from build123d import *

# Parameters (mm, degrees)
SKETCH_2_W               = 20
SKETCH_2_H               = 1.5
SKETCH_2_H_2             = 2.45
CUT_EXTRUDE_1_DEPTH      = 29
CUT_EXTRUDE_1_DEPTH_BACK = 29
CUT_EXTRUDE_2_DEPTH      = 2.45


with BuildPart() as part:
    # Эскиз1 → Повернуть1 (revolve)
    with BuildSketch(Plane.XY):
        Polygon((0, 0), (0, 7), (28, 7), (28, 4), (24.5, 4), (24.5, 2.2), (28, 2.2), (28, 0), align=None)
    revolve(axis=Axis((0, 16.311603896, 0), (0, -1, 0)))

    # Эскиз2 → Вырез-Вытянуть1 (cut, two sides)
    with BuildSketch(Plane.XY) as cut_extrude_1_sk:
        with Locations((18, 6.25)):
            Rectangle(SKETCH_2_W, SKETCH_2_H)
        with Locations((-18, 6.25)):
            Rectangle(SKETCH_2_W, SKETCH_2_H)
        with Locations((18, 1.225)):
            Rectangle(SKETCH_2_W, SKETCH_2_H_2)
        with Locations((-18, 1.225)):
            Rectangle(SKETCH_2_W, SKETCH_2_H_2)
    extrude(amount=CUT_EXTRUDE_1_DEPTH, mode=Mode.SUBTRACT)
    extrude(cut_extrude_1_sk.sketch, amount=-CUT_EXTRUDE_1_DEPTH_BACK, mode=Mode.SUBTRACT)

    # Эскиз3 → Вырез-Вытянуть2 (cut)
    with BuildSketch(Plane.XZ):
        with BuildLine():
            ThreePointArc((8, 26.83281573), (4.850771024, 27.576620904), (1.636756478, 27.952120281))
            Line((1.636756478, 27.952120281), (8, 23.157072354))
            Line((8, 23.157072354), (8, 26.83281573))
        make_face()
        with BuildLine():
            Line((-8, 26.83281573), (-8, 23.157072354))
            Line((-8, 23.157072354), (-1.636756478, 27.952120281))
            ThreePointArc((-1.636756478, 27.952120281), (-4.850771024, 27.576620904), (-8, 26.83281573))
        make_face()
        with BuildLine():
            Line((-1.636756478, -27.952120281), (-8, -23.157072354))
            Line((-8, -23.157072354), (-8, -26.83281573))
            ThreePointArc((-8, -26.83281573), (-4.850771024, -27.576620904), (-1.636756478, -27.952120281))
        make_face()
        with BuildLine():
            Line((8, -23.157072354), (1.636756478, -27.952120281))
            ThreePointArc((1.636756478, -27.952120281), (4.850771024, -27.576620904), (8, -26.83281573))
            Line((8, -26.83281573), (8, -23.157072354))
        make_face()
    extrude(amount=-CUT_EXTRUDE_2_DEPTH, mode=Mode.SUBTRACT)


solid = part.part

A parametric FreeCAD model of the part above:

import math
import FreeCAD as App
import Part
import Sketcher

V = App.Vector
Q = App.Units.Quantity

doc = App.newDocument("Part")
params = doc.addObject("Spreadsheet::Sheet", "Params")
for row, (alias, value) in enumerate([
    ("sketch1_width", "28 mm"),
    ("sketch1_height", "7 mm"),
    ("sketch1_height2", "3 mm"),
    ("sketch1_width2", "3.5 mm"),
    ("sketch1_height3", "2.2 mm"),
    ("revolution_angle", "360 deg"),
    ("sketch2_width", "20 mm"),
    ("sketch2_height", "1.5 mm"),
    ("sketch2_height2", "2.45 mm"),
    ("sketch3_radius", "28 mm"),
    ("pocket2_length", "2.45 mm"),
], start=1):
    params.set(f"A{row}", alias)
    params.set(f"B{row}", "=" + value)
    params.setAlias(f"B{row}", alias)

body = doc.addObject("PartDesign::Body", "Body")

# Sketch on XY plane
sketch1 = body.newObject("Sketcher::SketchObject", "Sketch")
sketch1.AttachmentSupport = (doc.getObject("XY_Plane"), [""])
sketch1.MapMode = "FlatFace"
sketch1.addGeometry([
    Part.LineSegment(V(0, 7, 0), V(0, 0, 0)),  # 0
    Part.LineSegment(V(0, 0, 0), V(28, 0, 0)),  # 1
    Part.LineSegment(V(28, 0, 0), V(28, 2.2, 0)),  # 2
    Part.LineSegment(V(28, 2.2, 0), V(24.5, 2.2, 0)),  # 3
    Part.LineSegment(V(24.5, 2.2, 0), V(24.5, 4, 0)),  # 4
    Part.LineSegment(V(24.5, 4, 0), V(28, 4, 0)),  # 5
    Part.LineSegment(V(28, 4, 0), V(28, 7, 0)),  # 6
    Part.LineSegment(V(28, 7, 0), V(0, 7, 0)),  # 7
], False)
sketch1.addConstraint([
    Sketcher.Constraint("Coincident", 0, 2, 1, 1),
    Sketcher.Constraint("Coincident", 1, 2, 2, 1),
    Sketcher.Constraint("Coincident", 2, 2, 3, 1),
    Sketcher.Constraint("Coincident", 3, 2, 4, 1),
    Sketcher.Constraint("Coincident", 4, 2, 5, 1),
    Sketcher.Constraint("Coincident", 5, 2, 6, 1),
    Sketcher.Constraint("Coincident", 6, 2, 7, 1),
    Sketcher.Constraint("Coincident", 7, 2, 0, 1),
    Sketcher.Constraint("Vertical", 0),
    Sketcher.Constraint("Horizontal", 1),
    Sketcher.Constraint("Vertical", 2),
    Sketcher.Constraint("Horizontal", 3),
    Sketcher.Constraint("Vertical", 4),
    Sketcher.Constraint("Horizontal", 5),
    Sketcher.Constraint("Vertical", 6),
    Sketcher.Constraint("Horizontal", 7),
    Sketcher.Constraint("Coincident", 0, 2, -1, 1),
    Sketcher.Constraint("Vertical", 2, 2, 5, 2),
    Sketcher.Constraint("DistanceX", 1, 1, 1, 2, 28.0),
    Sketcher.Constraint("DistanceY", 0, 2, 0, 1, 7.0),
    Sketcher.Constraint("DistanceY", 6, 1, 6, 2, 3.0),
    Sketcher.Constraint("DistanceX", 3, 2, 3, 1, 3.5),
    Sketcher.Constraint("DistanceY", 2, 1, 2, 2, 2.2),
])
sketch1.setExpression("Constraints[18]", "Params.sketch1_width")
sketch1.setExpression("Constraints[19]", "Params.sketch1_height")
sketch1.setExpression("Constraints[20]", "Params.sketch1_height2")
sketch1.setExpression("Constraints[21]", "Params.sketch1_width2")
sketch1.setExpression("Constraints[22]", "Params.sketch1_height3")
revolution = body.newObject("PartDesign::Revolution", "Revolution")
revolution.Profile = sketch1
revolution.ReferenceAxis = (sketch1, ["V_Axis"])
revolution.setExpression("Angle", "Params.revolution_angle")

# Sketch on XY plane
sketch2 = body.newObject("Sketcher::SketchObject", "Sketch001")
sketch2.AttachmentSupport = (doc.getObject("XY_Plane"), [""])
sketch2.MapMode = "FlatFace"
sketch2.addGeometry([
    Part.LineSegment(V(8, 7, 0), V(8, 5.5, 0)),  # 0
    Part.LineSegment(V(8, 5.5, 0), V(28, 5.5, 0)),  # 1
    Part.LineSegment(V(28, 5.5, 0), V(28, 7, 0)),  # 2
    Part.LineSegment(V(28, 7, 0), V(8, 7, 0)),  # 3
    Part.LineSegment(V(-28, 7, 0), V(-28, 5.5, 0)),  # 4
    Part.LineSegment(V(-28, 5.5, 0), V(-8, 5.5, 0)),  # 5
    Part.LineSegment(V(-8, 5.5, 0), V(-8, 7, 0)),  # 6
    Part.LineSegment(V(-8, 7, 0), V(-28, 7, 0)),  # 7
    Part.LineSegment(V(8, 2.5, 0), V(8, 0, 0)),  # 8
    Part.LineSegment(V(8, 0, 0), V(28, 0, 0)),  # 9
    Part.LineSegment(V(28, 0, 0), V(28, 2.5, 0)),  # 10
    Part.LineSegment(V(28, 2.5, 0), V(8, 2.5, 0)),  # 11
    Part.LineSegment(V(-28, 2.5, 0), V(-28, 0, 0)),  # 12
    Part.LineSegment(V(-28, 0, 0), V(-8, 0, 0)),  # 13
    Part.LineSegment(V(-8, 0, 0), V(-8, 2.5, 0)),  # 14
    Part.LineSegment(V(-8, 2.5, 0), V(-28, 2.5, 0)),  # 15
], False)
sketch2.addConstraint([
    Sketcher.Constraint("Coincident", 0, 2, 1, 1),
    Sketcher.Constraint("Coincident", 1, 2, 2, 1),
    Sketcher.Constraint("Coincident", 2, 2, 3, 1),
    Sketcher.Constraint("Coincident", 3, 2, 0, 1),
    Sketcher.Constraint("Coincident", 4, 2, 5, 1),
    Sketcher.Constraint("Coincident", 5, 2, 6, 1),
    Sketcher.Constraint("Coincident", 6, 2, 7, 1),
    Sketcher.Constraint("Coincident", 7, 2, 4, 1),
    Sketcher.Constraint("Coincident", 8, 2, 9, 1),
    Sketcher.Constraint("Coincident", 9, 2, 10, 1),
    Sketcher.Constraint("Coincident", 10, 2, 11, 1),
    Sketcher.Constraint("Coincident", 11, 2, 8, 1),
    Sketcher.Constraint("Coincident", 12, 2, 13, 1),
    Sketcher.Constraint("Coincident", 13, 2, 14, 1),
    Sketcher.Constraint("Coincident", 14, 2, 15, 1),
    Sketcher.Constraint("Coincident", 15, 2, 12, 1),
    Sketcher.Constraint("Vertical", 0),
    Sketcher.Constraint("Horizontal", 1),
    Sketcher.Constraint("Vertical", 2),
    Sketcher.Constraint("Horizontal", 3),
    Sketcher.Constraint("Vertical", 4),
    Sketcher.Constraint("Horizontal", 5),
    Sketcher.Constraint("Vertical", 6),
    Sketcher.Constraint("Horizontal", 7),
    Sketcher.Constraint("Vertical", 8),
    Sketcher.Constraint("Horizontal", 9),
    Sketcher.Constraint("Vertical", 10),
    Sketcher.Constraint("Horizontal", 11),
    Sketcher.Constraint("Vertical", 12),
    Sketcher.Constraint("Horizontal", 13),
    Sketcher.Constraint("Vertical", 14),
    Sketcher.Constraint("Horizontal", 15),
    Sketcher.Constraint("Symmetric", 9, 2, 12, 2, -1, 1),
    Sketcher.Constraint("Symmetric", 1, 2, 4, 2, -2),
    Sketcher.Constraint("Symmetric", 3, 2, 6, 2, -2),
    Sketcher.Constraint("Symmetric", 8, 2, 13, 2, -2),
    Sketcher.Constraint("Horizontal", 11, 2, 14, 2),
    Sketcher.Constraint("Vertical", 3, 2, 8, 2),
    Sketcher.Constraint("Vertical", 2, 2, 9, 2),
    Sketcher.Constraint("DistanceX", 1, 1, 1, 2, 20.0),
    Sketcher.Constraint("DistanceY", 0, 2, 0, 1, 1.5),
    Sketcher.Constraint("DistanceX", -1, 1, 0, 2, 8.0),
    Sketcher.Constraint("DistanceY", -1, 1, 2, 2, 7.0),
    Sketcher.Constraint("DistanceY", 8, 2, 8, 1, 2.45),
])
sketch2.setExpression("Constraints[39]", "Params.sketch2_width")
sketch2.setExpression("Constraints[40]", "Params.sketch2_height")
sketch2.setExpression("Constraints[43]", "Params.sketch2_height2")
pocket1 = body.newObject("PartDesign::Pocket", "Pocket")
pocket1.Profile = sketch2
pocket1.Type = "ThroughAll"
pocket1.Midplane = True

# Sketch on XZ plane
sketch3 = body.newObject("Sketcher::SketchObject", "Sketch002")
sketch3.AttachmentSupport = (doc.getObject("XZ_Plane"), [""])
sketch3.MapMode = "FlatFace"
sketch3.addGeometry([
    Part.ArcOfCircle(Part.Circle(V(0, 0, 0), V(0, 0, 1), 28), math.radians(73.4), math.radians(86.65)),  # 0
    Part.LineSegment(V(1.6, 28, 0), V(8, 23.2, 0)),  # 1
    Part.LineSegment(V(8, 23.2, 0), V(8, 26.8, 0)),  # 2
    Part.LineSegment(V(-8, 26.8, 0), V(-8, 23.2, 0)),  # 3
    Part.LineSegment(V(-8, 23.2, 0), V(-1.6, 28, 0)),  # 4
    Part.ArcOfCircle(Part.Circle(V(0, 0, 0), V(0, 0, 1), 28), math.radians(93.35), math.radians(106.6)),  # 5
    Part.LineSegment(V(-1.6, -28, 0), V(-8, -23.2, 0)),  # 6
    Part.LineSegment(V(-8, -23.2, 0), V(-8, -26.8, 0)),  # 7
    Part.ArcOfCircle(Part.Circle(V(0, 0, 0), V(0, 0, 1), 28), math.radians(-106.6), math.radians(-93.35)),  # 8
    Part.LineSegment(V(8, -23.2, 0), V(1.6, -28, 0)),  # 9
    Part.ArcOfCircle(Part.Circle(V(0, 0, 0), V(0, 0, 1), 28), math.radians(-86.65), math.radians(-73.4)),  # 10
    Part.LineSegment(V(8, -26.8, 0), V(8, -23.2, 0)),  # 11
], False)
sketch3.addConstraint([
    Sketcher.Constraint("Coincident", 0, 2, 1, 1),
    Sketcher.Constraint("Coincident", 1, 2, 2, 1),
    Sketcher.Constraint("Coincident", 2, 2, 0, 1),
    Sketcher.Constraint("Coincident", 3, 2, 4, 1),
    Sketcher.Constraint("Coincident", 4, 2, 5, 1),
    Sketcher.Constraint("Coincident", 5, 2, 3, 1),
    Sketcher.Constraint("Coincident", 6, 2, 7, 1),
    Sketcher.Constraint("Coincident", 7, 2, 8, 1),
    Sketcher.Constraint("Coincident", 8, 2, 6, 1),
    Sketcher.Constraint("Coincident", 9, 2, 10, 1),
    Sketcher.Constraint("Coincident", 10, 2, 11, 1),
    Sketcher.Constraint("Coincident", 11, 2, 9, 1),
    Sketcher.Constraint("Vertical", 2),
    Sketcher.Constraint("Vertical", 3),
    Sketcher.Constraint("Vertical", 7),
    Sketcher.Constraint("Vertical", 11),
    Sketcher.Constraint("Coincident", 0, 3, -1, 1),
    Sketcher.Constraint("Coincident", 5, 3, -1, 1),
    Sketcher.Constraint("Coincident", 8, 3, -1, 1),
    Sketcher.Constraint("Coincident", 10, 3, -1, 1),
    Sketcher.Constraint("Equal", 0, 5),
    Sketcher.Constraint("Equal", 5, 8),
    Sketcher.Constraint("Equal", 8, 10),
    Sketcher.Constraint("Symmetric", 1, 2, 6, 2, -1, 1),
    Sketcher.Constraint("Symmetric", 3, 2, 11, 2, -1, 1),
    Sketcher.Constraint("Symmetric", 1, 2, 3, 2, -2),
    Sketcher.Constraint("Parallel", 1, 6),
    Sketcher.Constraint("Parallel", 4, 9),
    Sketcher.Constraint("Horizontal", 0, 2, 4, 2),
    Sketcher.Constraint("Radius", 0, 28.0),
    Sketcher.Constraint("Angle", 1, Q("-37 deg")),
    Sketcher.Constraint("DistanceX", -1, 1, 1, 2, 8.0),
    Sketcher.Constraint("DistanceY", 2, 1, 2, 2, 3.675743),
])
sketch3.setExpression("Constraints[29]", "Params.sketch3_radius")
pocket2 = body.newObject("PartDesign::Pocket", "Pocket001")
pocket2.Profile = sketch3
pocket2.setExpression("Length", "Params.pocket2_length")

doc.recompute()
